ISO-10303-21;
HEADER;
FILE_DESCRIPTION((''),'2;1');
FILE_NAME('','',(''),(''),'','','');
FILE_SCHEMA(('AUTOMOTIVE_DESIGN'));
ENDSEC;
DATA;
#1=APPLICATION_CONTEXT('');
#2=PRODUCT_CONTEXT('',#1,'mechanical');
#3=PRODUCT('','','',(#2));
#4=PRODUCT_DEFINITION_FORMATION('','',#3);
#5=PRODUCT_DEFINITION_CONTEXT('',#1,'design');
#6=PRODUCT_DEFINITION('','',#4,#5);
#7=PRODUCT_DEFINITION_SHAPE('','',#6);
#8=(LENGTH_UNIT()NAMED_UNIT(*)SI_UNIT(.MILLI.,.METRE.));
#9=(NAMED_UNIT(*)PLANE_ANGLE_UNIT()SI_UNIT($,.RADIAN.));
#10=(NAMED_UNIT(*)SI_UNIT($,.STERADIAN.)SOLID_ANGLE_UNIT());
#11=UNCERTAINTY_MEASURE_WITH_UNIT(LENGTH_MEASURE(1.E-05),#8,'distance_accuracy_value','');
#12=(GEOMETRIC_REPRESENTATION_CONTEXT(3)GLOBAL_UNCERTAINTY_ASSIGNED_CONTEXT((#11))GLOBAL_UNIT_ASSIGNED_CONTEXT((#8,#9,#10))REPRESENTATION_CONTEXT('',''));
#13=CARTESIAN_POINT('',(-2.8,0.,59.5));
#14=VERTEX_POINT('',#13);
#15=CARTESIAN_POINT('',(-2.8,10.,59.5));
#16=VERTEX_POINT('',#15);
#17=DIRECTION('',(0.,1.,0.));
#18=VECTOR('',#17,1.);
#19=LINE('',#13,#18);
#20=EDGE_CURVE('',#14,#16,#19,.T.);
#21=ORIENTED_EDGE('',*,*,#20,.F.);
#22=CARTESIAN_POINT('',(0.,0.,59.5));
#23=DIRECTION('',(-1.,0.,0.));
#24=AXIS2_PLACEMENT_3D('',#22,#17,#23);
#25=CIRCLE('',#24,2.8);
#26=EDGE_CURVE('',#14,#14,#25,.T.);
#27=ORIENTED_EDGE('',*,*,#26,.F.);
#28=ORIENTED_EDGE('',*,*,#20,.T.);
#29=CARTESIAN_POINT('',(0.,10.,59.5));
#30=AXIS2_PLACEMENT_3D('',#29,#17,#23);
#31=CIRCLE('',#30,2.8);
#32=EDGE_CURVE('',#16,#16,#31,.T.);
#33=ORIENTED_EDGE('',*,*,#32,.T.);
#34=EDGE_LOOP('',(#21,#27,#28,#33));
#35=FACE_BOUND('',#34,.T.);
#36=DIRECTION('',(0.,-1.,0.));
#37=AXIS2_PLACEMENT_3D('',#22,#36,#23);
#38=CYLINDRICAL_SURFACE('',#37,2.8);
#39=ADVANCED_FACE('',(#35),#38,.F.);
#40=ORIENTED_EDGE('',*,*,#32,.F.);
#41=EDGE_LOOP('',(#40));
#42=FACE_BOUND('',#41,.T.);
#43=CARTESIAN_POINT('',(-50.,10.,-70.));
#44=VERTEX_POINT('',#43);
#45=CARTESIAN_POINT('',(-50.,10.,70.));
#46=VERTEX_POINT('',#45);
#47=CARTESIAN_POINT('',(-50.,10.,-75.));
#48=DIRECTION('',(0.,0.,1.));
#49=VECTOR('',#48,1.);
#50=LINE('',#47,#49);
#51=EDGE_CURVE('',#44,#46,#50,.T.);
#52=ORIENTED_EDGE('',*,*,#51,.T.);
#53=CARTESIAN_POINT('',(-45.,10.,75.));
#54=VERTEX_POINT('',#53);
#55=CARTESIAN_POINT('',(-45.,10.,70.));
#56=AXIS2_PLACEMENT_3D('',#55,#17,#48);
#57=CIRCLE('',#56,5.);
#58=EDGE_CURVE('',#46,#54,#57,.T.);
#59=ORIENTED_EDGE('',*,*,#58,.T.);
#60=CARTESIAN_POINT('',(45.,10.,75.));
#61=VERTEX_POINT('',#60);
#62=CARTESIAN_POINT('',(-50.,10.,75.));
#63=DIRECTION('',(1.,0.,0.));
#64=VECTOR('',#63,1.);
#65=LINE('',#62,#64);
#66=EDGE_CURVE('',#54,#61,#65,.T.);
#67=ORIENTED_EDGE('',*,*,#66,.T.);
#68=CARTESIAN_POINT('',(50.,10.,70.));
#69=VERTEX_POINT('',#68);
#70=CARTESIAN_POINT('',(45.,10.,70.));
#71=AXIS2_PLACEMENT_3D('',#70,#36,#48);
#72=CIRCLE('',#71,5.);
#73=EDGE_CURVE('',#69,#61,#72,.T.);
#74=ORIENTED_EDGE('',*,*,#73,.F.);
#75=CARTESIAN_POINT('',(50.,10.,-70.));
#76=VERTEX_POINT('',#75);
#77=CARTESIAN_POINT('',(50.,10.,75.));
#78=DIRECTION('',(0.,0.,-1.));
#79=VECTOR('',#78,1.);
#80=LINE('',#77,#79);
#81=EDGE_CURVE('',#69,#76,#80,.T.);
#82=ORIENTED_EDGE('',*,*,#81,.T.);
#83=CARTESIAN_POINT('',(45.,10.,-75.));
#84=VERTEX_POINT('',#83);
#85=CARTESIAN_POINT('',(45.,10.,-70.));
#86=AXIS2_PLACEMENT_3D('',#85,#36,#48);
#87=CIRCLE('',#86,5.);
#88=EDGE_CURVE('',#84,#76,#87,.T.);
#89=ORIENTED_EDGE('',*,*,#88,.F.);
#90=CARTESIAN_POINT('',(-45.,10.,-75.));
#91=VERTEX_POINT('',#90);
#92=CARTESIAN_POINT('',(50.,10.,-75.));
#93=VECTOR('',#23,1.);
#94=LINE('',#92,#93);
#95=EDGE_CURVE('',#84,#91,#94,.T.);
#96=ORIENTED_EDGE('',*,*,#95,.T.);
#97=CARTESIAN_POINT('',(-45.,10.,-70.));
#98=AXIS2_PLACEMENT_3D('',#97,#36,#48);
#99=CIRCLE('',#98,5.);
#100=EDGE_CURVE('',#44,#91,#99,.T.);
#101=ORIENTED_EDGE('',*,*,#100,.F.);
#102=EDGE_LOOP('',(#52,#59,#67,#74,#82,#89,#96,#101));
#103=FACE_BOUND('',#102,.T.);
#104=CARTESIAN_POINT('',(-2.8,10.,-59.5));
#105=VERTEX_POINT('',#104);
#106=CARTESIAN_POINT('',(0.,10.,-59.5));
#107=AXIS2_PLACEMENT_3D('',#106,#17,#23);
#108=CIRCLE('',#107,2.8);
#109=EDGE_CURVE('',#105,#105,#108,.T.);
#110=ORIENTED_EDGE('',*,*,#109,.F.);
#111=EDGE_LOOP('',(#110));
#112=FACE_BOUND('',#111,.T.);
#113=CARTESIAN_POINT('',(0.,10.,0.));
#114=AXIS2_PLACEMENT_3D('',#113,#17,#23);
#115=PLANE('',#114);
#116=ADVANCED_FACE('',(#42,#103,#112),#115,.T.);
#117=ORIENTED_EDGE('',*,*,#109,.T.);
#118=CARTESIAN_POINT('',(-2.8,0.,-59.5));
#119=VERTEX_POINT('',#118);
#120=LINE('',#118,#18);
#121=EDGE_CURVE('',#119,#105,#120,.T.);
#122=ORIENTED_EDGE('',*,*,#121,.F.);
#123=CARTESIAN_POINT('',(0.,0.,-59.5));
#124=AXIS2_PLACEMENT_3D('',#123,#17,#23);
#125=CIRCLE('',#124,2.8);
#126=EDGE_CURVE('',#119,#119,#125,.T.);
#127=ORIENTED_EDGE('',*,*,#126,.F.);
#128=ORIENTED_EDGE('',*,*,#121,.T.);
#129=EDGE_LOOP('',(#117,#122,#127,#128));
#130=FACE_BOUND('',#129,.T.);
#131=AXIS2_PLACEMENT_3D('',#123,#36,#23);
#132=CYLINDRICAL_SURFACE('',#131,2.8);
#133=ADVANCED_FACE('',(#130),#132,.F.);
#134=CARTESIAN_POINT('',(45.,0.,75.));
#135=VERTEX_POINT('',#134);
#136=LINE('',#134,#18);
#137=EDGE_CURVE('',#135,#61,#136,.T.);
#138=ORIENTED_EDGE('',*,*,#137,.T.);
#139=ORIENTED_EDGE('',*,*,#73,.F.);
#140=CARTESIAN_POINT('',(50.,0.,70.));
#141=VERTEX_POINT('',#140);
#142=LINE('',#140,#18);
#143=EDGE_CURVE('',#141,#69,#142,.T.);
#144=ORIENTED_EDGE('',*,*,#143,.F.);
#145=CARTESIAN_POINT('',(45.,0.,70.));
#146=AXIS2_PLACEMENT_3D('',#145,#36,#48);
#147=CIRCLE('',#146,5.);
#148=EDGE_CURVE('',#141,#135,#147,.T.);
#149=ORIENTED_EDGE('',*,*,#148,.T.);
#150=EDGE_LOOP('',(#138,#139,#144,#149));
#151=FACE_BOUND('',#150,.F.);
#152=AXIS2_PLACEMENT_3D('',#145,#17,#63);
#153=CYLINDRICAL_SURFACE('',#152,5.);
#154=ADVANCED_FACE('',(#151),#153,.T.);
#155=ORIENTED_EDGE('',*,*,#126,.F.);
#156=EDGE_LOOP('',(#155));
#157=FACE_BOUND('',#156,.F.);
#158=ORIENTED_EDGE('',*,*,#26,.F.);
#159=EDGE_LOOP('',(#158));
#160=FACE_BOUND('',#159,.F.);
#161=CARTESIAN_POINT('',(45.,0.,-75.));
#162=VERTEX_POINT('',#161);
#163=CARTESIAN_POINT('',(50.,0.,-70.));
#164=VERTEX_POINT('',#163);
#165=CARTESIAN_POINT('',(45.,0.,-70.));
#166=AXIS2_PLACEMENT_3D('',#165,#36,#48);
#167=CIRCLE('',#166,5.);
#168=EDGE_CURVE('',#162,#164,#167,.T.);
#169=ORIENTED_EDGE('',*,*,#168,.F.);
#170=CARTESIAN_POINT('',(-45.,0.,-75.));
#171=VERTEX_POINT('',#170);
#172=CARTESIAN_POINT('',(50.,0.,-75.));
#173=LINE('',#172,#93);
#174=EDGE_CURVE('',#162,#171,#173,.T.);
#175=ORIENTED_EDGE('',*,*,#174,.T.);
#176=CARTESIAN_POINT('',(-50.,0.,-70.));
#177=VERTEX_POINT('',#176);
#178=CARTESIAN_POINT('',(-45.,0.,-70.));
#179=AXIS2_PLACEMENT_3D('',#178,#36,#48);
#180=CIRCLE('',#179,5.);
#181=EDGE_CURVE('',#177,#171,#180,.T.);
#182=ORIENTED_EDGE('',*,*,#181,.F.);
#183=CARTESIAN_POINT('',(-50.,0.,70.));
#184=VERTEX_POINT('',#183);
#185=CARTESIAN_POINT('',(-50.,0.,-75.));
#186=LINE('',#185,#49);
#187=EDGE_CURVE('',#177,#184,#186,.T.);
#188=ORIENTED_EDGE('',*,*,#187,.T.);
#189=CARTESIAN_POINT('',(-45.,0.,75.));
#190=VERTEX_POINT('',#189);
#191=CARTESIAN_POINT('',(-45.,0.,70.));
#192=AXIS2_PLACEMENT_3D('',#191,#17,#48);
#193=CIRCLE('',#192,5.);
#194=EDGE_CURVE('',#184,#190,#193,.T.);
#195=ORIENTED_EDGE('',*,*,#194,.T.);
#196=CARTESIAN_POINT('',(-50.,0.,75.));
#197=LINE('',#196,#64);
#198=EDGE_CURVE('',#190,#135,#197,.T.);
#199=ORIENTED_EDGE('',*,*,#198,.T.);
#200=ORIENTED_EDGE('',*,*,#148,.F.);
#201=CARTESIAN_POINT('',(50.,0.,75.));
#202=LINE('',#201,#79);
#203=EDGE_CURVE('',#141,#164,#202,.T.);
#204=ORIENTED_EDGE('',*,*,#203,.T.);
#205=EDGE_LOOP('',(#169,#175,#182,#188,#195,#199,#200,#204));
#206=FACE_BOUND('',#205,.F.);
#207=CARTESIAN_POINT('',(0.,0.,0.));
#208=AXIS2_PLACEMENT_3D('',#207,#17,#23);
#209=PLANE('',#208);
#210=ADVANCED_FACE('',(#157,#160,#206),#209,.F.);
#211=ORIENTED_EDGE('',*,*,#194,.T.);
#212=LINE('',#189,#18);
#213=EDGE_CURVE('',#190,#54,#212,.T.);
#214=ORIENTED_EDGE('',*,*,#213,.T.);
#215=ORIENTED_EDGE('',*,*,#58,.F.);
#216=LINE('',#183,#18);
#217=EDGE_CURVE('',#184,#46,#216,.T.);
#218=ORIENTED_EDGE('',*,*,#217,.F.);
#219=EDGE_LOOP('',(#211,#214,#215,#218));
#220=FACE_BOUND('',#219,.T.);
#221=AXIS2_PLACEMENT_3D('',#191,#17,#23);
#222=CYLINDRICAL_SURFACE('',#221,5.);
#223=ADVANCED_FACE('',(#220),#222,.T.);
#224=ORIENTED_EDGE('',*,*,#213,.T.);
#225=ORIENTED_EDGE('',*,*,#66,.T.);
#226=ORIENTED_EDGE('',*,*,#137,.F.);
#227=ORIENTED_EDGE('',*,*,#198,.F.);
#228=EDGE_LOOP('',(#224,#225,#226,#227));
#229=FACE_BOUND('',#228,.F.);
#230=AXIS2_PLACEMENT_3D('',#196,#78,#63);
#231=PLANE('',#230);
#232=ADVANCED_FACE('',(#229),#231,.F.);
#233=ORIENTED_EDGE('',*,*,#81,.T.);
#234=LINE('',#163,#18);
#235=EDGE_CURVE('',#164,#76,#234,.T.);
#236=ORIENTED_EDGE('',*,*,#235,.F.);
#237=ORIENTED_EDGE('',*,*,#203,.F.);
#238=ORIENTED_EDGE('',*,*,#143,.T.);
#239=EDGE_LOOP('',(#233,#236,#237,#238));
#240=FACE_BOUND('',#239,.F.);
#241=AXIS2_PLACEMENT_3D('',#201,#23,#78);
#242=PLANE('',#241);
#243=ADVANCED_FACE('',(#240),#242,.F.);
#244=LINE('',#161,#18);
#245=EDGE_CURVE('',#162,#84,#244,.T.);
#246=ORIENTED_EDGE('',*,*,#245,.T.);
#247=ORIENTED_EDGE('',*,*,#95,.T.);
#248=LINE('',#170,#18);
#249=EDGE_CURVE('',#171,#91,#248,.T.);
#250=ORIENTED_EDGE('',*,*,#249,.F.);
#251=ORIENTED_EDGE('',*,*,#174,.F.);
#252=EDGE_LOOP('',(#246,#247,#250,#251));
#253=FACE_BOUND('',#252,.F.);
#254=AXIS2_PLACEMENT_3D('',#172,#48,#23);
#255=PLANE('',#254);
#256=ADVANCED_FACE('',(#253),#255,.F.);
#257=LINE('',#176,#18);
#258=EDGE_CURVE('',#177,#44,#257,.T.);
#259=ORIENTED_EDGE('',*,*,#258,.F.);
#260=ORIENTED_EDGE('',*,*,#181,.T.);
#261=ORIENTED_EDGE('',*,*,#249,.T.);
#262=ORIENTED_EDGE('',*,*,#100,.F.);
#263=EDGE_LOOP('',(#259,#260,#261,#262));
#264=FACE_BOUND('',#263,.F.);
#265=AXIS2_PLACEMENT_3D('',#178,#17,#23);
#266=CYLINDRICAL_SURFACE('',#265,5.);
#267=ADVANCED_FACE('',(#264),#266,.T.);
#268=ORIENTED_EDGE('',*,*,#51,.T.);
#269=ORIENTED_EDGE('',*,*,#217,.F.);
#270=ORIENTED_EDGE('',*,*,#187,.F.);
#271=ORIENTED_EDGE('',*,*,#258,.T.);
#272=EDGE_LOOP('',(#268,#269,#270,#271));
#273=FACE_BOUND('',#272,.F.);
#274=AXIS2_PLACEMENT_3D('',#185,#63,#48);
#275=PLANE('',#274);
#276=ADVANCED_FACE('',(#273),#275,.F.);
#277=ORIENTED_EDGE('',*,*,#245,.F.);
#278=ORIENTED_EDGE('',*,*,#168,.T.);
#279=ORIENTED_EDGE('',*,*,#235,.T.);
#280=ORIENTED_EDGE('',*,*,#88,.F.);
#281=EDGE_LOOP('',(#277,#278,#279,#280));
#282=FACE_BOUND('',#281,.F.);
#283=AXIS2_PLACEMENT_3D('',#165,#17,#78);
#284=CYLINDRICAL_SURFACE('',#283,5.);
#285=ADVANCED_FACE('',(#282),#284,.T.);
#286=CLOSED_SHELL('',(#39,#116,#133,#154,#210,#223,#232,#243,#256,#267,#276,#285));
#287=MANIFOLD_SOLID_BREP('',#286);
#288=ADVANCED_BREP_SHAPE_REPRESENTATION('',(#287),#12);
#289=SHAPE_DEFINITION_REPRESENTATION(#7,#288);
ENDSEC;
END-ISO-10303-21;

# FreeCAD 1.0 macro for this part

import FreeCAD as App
import Part
import Sketcher

V = App.Vector
Q = App.Units.Quantity


def edges_at(feature, points):
    """Names of the edges that pass closest to the given points."""
    edges = feature.Shape.Edges
    near = lambda p: min(range(len(edges)), key=lambda i: edges[i].distToShape(Part.Vertex(*p))[0])
    return sorted({f"Edge{near(p) + 1}" for p in points})

doc = App.newDocument("Part")
body = doc.addObject("PartDesign::Body", "Body")

# Sketch on XZ plane
sketch1 = body.newObject("Sketcher::SketchObject", "Sketch")
sketch1.AttachmentSupport = (doc.getObject("XZ_Plane"), [""])
sketch1.MapMode = "FlatFace"
sketch1.addGeometry(Part.LineSegment(V(-50, -75, 0), V(-50, 75, 0)), False)
sketch1.addGeometry(Part.LineSegment(V(-50, 75, 0), V(50, 75, 0)), False)
sketch1.addGeometry(Part.LineSegment(V(50, 75, 0), V(50, -75, 0)), False)
sketch1.addGeometry(Part.LineSegment(V(50, -75, 0), V(-50, -75, 0)), False)
sketch1.addGeometry(Part.Circle(V(0, -59.5, 0), V(0, 0, 1), 2.8), False)
sketch1.addGeometry(Part.Circle(V(0, 59.5, 0), V(0, 0, 1), 2.8), False)
sketch1.addConstraint(Sketcher.Constraint("Coincident", 0, 2, 1, 1))
sketch1.addConstraint(Sketcher.Constraint("Coincident", 1, 2, 2, 1))
sketch1.addConstraint(Sketcher.Constraint("Coincident", 2, 2, 3, 1))
sketch1.addConstraint(Sketcher.Constraint("Coincident", 3, 2, 0, 1))
sketch1.addConstraint(Sketcher.Constraint("Vertical", 0))
sketch1.addConstraint(Sketcher.Constraint("Horizontal", 1))
sketch1.addConstraint(Sketcher.Constraint("Vertical", 2))
sketch1.addConstraint(Sketcher.Constraint("Horizontal", 3))
sketch1.addConstraint(Sketcher.Constraint("Equal", 4, 5))
sketch1.addConstraint(Sketcher.Constraint("Symmetric", 4, 3, 5, 3, -1, 1))
sketch1.addConstraint(Sketcher.Constraint("Symmetric", 0, 2, 2, 2, -1, 1))
sketch1.addConstraint(Sketcher.Constraint("PointOnObject", 4, 3, -2))
sketch1.addConstraint(Sketcher.Constraint("Diameter", 4, Q("5.6 mm")))
sketch1.addConstraint(Sketcher.Constraint("DistanceX", 1, 1, 1, 2, Q("100 mm")))
sketch1.addConstraint(Sketcher.Constraint("DistanceY", 0, 1, 0, 2, Q("150 mm")))
sketch1.addConstraint(Sketcher.Constraint("DistanceY", 4, 3, -1, 1, Q("59.5 mm")))
pad1 = body.newObject("PartDesign::Pad", "Pad")
pad1.Profile = sketch1
pad1.Length = 10
pad1.Reversed = True
doc.recompute()

fillet = body.newObject("PartDesign::Fillet", "Fillet")
fillet.Base = (pad1, edges_at(pad1, [
    (50, 5, 75),
    (50, 5, -75),
    (-50, 5, 75),
    (-50, 5, -75),
]))
fillet.Radius = 5

doc.recompute()
